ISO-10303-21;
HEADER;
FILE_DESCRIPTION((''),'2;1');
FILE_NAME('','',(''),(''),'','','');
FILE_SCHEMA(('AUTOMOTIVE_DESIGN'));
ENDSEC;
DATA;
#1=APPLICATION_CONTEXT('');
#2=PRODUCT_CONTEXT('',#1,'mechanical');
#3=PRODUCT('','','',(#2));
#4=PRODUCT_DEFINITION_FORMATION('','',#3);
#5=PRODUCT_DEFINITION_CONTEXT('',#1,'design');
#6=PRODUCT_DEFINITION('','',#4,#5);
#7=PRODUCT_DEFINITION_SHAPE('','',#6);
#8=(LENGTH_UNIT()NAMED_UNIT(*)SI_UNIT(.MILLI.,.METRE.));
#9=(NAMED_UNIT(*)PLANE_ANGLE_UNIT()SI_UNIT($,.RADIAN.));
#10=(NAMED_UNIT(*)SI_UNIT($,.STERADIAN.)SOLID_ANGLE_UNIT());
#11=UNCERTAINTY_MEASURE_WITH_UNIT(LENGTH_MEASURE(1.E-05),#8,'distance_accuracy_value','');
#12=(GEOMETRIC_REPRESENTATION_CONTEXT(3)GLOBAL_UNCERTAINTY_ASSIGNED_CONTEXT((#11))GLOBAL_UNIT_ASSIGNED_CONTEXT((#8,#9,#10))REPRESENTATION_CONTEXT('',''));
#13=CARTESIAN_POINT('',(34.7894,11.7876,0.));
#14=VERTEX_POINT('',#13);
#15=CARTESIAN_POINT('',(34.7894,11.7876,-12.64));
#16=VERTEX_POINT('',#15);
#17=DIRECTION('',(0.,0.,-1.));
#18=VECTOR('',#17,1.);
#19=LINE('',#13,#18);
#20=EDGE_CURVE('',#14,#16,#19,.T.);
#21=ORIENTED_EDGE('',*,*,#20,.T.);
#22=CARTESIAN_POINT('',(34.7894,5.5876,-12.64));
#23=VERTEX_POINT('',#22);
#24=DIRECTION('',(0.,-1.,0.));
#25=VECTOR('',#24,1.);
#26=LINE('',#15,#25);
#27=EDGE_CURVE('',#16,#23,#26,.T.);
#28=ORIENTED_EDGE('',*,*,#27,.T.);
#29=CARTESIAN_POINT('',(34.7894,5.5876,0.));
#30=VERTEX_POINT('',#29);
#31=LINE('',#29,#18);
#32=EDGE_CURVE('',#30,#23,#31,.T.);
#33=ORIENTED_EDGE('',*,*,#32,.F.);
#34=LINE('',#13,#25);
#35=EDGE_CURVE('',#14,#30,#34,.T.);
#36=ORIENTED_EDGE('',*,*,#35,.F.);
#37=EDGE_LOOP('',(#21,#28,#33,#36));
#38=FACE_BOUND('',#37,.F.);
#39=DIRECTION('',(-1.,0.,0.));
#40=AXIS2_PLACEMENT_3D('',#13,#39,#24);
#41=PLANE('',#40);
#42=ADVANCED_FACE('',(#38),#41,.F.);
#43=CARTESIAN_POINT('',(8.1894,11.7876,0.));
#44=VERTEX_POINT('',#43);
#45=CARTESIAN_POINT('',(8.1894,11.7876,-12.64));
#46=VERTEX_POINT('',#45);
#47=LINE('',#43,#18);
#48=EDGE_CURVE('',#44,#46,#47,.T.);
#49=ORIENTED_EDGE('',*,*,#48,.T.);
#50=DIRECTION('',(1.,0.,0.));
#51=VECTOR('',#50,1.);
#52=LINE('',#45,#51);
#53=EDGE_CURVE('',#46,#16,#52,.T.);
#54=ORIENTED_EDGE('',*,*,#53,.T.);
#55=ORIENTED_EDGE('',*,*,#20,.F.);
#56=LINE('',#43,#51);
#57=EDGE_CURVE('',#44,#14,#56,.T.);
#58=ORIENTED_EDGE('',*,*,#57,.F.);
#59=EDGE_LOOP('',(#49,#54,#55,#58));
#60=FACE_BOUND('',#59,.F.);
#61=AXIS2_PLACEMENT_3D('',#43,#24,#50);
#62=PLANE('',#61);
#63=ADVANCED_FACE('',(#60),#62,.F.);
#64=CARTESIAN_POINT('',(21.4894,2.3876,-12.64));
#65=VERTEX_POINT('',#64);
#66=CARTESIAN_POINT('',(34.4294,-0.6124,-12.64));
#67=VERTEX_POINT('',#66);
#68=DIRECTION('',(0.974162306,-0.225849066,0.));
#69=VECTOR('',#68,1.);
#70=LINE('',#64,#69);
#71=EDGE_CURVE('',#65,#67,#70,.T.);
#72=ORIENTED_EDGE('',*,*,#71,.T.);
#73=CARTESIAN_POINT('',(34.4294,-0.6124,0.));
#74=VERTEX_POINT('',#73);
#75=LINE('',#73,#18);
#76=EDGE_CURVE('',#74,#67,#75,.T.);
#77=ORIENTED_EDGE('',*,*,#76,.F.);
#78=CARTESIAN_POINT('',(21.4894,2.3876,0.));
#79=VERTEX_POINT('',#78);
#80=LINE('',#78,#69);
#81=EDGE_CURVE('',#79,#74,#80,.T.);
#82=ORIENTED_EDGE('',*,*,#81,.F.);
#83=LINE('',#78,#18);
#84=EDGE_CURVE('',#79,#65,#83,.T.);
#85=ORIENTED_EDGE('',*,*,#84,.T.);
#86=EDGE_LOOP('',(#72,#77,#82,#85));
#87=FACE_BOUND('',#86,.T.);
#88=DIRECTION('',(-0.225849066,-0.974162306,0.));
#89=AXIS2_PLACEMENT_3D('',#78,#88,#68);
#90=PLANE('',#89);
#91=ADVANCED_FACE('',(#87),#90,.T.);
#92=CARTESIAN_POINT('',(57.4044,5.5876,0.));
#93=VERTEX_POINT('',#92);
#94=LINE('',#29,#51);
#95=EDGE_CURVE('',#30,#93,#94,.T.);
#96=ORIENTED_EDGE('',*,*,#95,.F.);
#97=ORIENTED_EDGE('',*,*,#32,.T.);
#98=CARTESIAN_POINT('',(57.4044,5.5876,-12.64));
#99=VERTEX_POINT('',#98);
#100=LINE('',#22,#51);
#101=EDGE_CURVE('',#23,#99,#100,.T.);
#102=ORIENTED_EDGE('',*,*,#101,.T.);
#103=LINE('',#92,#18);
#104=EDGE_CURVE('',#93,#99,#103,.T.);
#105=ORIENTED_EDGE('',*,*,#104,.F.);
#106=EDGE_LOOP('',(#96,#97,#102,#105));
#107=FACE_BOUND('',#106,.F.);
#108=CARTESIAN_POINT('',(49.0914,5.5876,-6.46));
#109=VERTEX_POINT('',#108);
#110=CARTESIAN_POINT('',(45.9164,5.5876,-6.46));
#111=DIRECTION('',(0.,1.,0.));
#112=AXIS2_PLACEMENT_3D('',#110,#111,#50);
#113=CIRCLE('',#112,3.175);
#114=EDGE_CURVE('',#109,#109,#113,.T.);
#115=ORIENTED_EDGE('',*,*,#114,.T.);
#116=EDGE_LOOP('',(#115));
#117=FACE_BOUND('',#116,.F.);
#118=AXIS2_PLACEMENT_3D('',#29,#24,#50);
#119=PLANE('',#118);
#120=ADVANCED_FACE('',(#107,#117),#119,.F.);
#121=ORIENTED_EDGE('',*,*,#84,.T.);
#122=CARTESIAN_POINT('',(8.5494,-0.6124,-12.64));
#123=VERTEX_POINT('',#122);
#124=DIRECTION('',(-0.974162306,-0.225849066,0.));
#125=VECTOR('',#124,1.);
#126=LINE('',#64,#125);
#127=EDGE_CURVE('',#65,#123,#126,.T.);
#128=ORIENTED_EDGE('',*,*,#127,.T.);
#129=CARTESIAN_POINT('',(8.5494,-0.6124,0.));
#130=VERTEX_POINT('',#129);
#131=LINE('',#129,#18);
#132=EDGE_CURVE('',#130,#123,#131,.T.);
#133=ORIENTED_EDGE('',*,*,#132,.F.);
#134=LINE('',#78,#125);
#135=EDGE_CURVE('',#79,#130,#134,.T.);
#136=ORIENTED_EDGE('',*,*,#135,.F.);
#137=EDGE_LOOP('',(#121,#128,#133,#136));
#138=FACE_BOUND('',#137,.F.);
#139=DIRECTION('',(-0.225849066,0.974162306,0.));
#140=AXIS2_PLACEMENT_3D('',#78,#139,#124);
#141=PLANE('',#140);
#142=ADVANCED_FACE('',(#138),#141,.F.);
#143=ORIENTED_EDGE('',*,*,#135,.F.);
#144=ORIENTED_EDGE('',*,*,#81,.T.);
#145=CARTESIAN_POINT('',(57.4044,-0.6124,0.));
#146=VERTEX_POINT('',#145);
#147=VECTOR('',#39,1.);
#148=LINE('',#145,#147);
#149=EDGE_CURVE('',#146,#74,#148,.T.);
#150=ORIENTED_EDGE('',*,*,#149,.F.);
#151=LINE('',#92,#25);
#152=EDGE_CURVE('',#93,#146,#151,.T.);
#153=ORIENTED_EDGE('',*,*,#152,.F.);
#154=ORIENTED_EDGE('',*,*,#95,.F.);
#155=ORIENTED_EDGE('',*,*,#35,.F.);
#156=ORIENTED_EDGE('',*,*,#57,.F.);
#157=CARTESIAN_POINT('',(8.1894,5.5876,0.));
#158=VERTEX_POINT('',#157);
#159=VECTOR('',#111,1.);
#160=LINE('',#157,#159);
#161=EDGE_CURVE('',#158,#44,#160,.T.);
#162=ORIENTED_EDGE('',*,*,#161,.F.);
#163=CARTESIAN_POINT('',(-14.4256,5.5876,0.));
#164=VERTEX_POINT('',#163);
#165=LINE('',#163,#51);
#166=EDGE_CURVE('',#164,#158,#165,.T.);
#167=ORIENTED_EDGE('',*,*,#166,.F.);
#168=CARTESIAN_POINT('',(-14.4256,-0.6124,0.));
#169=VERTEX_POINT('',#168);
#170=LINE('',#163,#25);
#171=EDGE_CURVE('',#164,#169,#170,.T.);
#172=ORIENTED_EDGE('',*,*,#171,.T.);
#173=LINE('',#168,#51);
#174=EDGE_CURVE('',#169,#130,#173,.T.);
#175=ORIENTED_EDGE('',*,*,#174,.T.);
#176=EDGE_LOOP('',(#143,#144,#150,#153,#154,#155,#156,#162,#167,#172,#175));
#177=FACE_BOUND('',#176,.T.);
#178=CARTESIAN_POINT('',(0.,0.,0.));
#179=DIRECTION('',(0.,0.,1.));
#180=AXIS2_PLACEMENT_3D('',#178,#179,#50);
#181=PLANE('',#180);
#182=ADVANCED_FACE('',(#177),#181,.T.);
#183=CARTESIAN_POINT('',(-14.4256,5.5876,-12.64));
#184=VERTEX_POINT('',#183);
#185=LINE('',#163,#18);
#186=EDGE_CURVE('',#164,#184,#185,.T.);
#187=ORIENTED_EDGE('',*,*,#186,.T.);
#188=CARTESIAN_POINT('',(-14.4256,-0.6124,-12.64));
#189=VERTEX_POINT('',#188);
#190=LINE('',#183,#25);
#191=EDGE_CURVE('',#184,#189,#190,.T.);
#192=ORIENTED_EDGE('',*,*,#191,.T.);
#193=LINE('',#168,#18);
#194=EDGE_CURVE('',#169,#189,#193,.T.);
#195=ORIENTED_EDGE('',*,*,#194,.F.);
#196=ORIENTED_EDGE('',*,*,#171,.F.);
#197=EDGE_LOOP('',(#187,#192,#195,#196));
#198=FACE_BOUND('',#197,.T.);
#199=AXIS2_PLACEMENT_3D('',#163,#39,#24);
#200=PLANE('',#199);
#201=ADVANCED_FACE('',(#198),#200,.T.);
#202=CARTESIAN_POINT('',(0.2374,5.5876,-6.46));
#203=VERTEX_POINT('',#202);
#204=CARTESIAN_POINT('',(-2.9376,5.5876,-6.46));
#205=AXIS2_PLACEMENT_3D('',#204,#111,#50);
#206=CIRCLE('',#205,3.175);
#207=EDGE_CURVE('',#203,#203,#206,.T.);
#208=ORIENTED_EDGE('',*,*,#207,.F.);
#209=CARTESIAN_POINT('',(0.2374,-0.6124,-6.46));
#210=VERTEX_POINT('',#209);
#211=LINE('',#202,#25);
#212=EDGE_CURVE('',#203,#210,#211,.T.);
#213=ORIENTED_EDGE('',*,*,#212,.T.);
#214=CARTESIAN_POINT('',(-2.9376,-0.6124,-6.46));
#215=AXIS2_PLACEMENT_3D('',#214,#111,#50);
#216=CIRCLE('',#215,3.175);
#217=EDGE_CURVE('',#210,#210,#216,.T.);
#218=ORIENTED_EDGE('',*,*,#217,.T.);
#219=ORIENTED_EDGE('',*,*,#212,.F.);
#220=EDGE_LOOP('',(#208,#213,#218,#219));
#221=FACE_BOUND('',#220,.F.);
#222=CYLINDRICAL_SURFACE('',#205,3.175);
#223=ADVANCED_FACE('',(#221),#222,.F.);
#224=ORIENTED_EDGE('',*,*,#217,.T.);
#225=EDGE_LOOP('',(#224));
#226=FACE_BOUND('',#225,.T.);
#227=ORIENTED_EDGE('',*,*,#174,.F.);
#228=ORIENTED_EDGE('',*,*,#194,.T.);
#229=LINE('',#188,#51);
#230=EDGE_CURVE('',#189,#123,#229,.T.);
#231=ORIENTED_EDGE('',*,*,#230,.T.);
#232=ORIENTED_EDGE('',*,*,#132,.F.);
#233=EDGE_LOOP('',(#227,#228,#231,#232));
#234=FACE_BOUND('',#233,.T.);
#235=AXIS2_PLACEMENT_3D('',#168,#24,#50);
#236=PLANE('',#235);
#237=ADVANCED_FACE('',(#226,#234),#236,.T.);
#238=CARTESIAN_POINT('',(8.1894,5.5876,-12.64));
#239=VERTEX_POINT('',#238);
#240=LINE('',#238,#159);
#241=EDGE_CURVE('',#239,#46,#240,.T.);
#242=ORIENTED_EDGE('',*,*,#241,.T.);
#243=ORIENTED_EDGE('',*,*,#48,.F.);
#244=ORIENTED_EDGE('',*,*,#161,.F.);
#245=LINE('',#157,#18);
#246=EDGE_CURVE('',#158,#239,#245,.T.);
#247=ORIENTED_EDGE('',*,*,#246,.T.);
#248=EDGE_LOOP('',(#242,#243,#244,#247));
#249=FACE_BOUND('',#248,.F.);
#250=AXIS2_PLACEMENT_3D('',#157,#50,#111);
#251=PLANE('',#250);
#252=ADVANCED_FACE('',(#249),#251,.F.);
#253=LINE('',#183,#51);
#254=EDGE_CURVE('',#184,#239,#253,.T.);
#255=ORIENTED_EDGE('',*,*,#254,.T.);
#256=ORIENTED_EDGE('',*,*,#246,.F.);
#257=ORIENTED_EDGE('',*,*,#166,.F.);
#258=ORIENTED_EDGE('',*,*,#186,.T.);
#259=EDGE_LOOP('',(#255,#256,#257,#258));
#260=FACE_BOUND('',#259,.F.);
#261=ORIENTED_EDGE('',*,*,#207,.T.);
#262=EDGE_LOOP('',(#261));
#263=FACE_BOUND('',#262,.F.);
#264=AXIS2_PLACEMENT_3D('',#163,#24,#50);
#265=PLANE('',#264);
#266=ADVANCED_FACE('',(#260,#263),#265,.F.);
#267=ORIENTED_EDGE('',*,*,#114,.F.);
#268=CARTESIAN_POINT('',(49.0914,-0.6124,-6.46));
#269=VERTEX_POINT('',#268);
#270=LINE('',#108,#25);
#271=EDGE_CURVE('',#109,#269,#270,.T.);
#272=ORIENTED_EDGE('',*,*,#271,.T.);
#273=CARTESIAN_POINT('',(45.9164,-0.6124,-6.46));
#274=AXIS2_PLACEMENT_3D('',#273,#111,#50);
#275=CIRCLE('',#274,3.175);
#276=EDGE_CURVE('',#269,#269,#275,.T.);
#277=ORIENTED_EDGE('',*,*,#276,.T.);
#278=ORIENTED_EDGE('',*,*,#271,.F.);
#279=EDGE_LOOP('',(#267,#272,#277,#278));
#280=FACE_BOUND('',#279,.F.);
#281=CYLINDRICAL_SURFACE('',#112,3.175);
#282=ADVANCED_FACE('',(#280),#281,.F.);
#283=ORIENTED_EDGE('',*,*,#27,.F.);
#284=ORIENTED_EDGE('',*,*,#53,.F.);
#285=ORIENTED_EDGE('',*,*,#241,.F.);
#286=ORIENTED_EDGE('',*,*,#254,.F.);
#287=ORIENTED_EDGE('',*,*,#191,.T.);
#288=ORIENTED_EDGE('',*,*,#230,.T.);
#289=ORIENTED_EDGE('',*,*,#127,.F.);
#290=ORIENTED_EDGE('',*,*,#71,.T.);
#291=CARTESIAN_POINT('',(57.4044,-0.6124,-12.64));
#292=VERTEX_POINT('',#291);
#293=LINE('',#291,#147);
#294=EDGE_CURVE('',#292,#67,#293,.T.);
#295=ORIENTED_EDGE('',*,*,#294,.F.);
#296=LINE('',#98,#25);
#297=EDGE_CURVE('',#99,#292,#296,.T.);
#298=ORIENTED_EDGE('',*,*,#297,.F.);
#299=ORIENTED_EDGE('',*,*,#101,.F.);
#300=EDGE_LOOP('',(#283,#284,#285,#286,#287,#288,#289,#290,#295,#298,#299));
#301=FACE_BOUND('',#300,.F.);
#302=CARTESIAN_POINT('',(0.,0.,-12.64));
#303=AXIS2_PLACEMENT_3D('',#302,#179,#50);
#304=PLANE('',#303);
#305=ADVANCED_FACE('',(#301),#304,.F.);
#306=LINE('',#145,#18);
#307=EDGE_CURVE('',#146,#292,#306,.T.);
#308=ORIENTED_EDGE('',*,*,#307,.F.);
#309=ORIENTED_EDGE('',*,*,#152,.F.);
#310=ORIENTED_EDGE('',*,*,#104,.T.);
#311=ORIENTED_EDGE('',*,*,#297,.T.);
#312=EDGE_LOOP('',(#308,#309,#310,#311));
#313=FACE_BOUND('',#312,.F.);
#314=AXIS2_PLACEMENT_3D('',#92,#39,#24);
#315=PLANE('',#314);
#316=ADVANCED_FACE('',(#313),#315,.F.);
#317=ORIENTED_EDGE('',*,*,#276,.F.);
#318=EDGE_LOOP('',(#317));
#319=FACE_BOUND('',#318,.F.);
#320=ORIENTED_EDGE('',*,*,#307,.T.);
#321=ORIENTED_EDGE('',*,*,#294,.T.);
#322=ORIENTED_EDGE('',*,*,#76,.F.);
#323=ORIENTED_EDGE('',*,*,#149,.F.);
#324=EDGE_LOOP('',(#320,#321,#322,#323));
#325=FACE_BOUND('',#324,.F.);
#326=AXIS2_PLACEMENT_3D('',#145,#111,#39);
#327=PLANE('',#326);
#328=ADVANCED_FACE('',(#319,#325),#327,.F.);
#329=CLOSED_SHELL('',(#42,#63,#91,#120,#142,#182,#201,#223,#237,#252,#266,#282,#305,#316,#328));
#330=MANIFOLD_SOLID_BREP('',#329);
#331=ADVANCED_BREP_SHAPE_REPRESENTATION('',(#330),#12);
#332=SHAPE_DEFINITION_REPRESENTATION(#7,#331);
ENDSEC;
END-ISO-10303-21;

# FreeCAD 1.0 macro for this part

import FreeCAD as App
import Part
import Sketcher
Q = App.Units.Quantity


def add_polygon(sketch, points):
    """Adds a closed chain of lines whose ends are joined by coincident constraints."""
    first, n = sketch.GeometryCount, len(points)
    for a, b in zip(points, points[1:] + points[:1]):
        sketch.addGeometry(Part.LineSegment(App.Vector(*a, 0), App.Vector(*b, 0)), False)
    for i in range(n):
        sketch.addConstraint(Sketcher.Constraint("Coincident", first + i, 2, first + (i + 1) % n, 1))

doc = App.newDocument("Part")
params = doc.addObject("Spreadsheet::Sheet", "Params")
for row, (alias, value) in enumerate([
    ("sketch1_width", "26.6 mm"),
    ("sketch1_height", "6.2 mm"),
    ("pad1_length", "12.64 mm"),
    ("sketch2_diameter", "6.35 mm"),
    ("pocket1_length", "12.64 mm"),
], start=1):
    params.set(f"A{row}", alias)
    params.set(f"B{row}", "=" + value)
    params.setAlias(f"B{row}", alias)

body = doc.addObject("PartDesign::Body", "Body")

sketch1 = body.newObject("Sketcher::SketchObject", "Sketch")
sketch1.AttachmentSupport = (doc.getObject("XY_Plane"), [""])
sketch1.MapMode = "FlatFace"
add_polygon(sketch1, [(8, 6), (-14, 6), (-14, -1), (9, -1), (21, 2), (34, -1), (57, -1), (57, 6), (35, 6), (35, 12), (8, 12)])
sketch1.addConstraint([
    Sketcher.Constraint("Horizontal", 0),
    Sketcher.Constraint("Vertical", 1),
    Sketcher.Constraint("Horizontal", 2),
    Sketcher.Constraint("Horizontal", 5),
    Sketcher.Constraint("Vertical", 6),
    Sketcher.Constraint("Horizontal", 7),
    Sketcher.Constraint("Vertical", 8),
    Sketcher.Constraint("Horizontal", 9),
    Sketcher.Constraint("Vertical", 10),
    Sketcher.Constraint("Horizontal", 2, 2, 4, 2),
    Sketcher.Constraint("Horizontal", 0, 2, 6, 2),
    Sketcher.Constraint("Equal", 2, 5),
    Sketcher.Constraint("Equal", 0, 7),
    Sketcher.Constraint("Equal", 6, 8),
    Sketcher.Constraint("Equal", 3, 4),
    Sketcher.Constraint("DistanceX", 9, 2, 9, 1, Q("26.6 mm")),
    Sketcher.Constraint("DistanceY", 1, 2, 1, 1, Q("6.2 mm")),
    Sketcher.Constraint("DistanceX", 0, 2, 0, 1, Q("22.615 mm")),
    Sketcher.Constraint("DistanceX", 2, 1, 2, 2, Q("22.975 mm")),
    Sketcher.Constraint("DistanceY", 2, 2, 3, 2, Q("3 mm")),
    Sketcher.Constraint("DistanceX", 0, 2, -1, 1, Q("14.4256 mm")),
    Sketcher.Constraint("DistanceY", -1, 1, 0, 2, Q("5.5876 mm")),
])
sketch1.setExpression("Constraints[26]", "Params.sketch1_width")
sketch1.setExpression("Constraints[27]", "Params.sketch1_height")
pad1 = body.newObject("PartDesign::Pad", "Pad")
pad1.Profile = sketch1
pad1.setExpression("Length", "Params.pad1_length")
pad1.Reversed = True

sketch2 = body.newObject("Sketcher::SketchObject", "Sketch001")
sketch2.AttachmentSupport = (doc.getObject("XZ_Plane"), [""])
sketch2.MapMode = "FlatFace"
sketch2.AttachmentOffset = App.Placement(App.Vector(0, 0, -5.5876), App.Rotation())
sketch2.addGeometry([
    Part.Circle(App.Vector(-2.9, -6.5, 0), App.Vector(0, 0, 1), 3.2),
    Part.Circle(App.Vector(45.9, -6.5, 0), App.Vector(0, 0, 1), 3.2),
], False)
sketch2.addConstraint([
    Sketcher.Constraint("Equal", 0, 1),
    Sketcher.Constraint("Horizontal", 0, 3, 1, 3),
    Sketcher.Constraint("Diameter", 0, Q("6.35 mm")),
    Sketcher.Constraint("DistanceY", 0, 3, -1, 1, Q("6.46 mm")),
    Sketcher.Constraint("DistanceX", 0, 3, 1, 3, Q("48.854 mm")),
    Sketcher.Constraint("DistanceX", 0, 3, -1, 1, Q("2.9376 mm")),
])
sketch2.setExpression("Constraints[2]", "Params.sketch2_diameter")
pocket1 = body.newObject("PartDesign::Pocket", "Pocket")
pocket1.Profile = sketch2
pocket1.setExpression("Length", "Params.pocket1_length")
pocket1.Reversed = True

doc.recompute()
